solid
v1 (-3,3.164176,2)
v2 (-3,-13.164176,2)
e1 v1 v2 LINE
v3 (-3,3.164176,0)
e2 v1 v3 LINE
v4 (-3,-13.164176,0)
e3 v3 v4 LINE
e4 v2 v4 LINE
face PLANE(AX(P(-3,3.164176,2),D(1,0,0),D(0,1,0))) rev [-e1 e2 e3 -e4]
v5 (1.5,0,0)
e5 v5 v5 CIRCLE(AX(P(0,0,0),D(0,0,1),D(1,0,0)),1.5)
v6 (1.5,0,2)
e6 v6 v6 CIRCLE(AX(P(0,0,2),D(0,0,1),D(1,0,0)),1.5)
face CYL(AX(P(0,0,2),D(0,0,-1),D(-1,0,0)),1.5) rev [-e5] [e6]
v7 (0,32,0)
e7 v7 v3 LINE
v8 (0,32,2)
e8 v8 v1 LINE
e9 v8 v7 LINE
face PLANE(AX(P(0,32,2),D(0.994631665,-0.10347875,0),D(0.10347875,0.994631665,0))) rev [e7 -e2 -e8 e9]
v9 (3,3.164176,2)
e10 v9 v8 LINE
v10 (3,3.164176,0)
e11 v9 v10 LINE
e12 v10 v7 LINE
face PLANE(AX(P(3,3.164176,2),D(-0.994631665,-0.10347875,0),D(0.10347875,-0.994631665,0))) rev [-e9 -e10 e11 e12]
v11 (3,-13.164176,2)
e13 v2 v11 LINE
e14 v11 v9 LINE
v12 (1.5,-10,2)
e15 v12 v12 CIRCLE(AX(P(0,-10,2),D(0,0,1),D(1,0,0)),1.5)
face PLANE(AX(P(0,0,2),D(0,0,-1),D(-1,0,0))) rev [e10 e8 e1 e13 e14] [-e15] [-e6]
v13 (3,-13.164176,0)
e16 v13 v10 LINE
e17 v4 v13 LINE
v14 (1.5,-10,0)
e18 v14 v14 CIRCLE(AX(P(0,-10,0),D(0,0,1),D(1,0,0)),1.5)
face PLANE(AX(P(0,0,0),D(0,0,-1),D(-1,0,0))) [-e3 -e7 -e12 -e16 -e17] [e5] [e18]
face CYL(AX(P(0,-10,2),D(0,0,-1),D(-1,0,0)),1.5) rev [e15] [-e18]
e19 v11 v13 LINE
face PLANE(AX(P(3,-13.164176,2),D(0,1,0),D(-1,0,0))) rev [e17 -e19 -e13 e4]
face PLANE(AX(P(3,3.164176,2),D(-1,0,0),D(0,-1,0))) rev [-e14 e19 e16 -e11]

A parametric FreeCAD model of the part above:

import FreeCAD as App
import Part
import Sketcher
from FreeCAD import Vector


def add_polygon(sketch, points):
    """Adds a closed chain of lines whose ends are joined by coincident constraints."""
    first, n = sketch.GeometryCount, len(points)
    for a, b in zip(points, points[1:] + points[:1]):
        sketch.addGeometry(Part.LineSegment(App.Vector(*a, 0), App.Vector(*b, 0)), False)
    for i in range(n):
        sketch.addConstraint(Sketcher.Constraint("Coincident", first + i, 2, first + (i + 1) % n, 1))

doc = App.newDocument("Part")
body = doc.addObject("PartDesign::Body", "Body")

sketch1 = body.newObject("Sketcher::SketchObject", "Sketch")
sketch1.AttachmentSupport = (doc.getObject("XY_Plane"), [""])
sketch1.MapMode = "FlatFace"
add_polygon(sketch1, [(3, 3.2), (0, 32), (-3, 3.2), (-3, -13.2), (3, -13.2)])
sketch1.addGeometry(Part.Circle(Vector(0, -10, 0), Vector(0, 0, 1), 1.5), False)
sketch1.addGeometry(Part.Circle(Vector(0, 0, 0), Vector(0, 0, 1), 1.5), False)
sketch1.addConstraint([
    Sketcher.Constraint("Vertical", 2),
    Sketcher.Constraint("Horizontal", 3),
    Sketcher.Constraint("Vertical", 4),
    Sketcher.Constraint("Coincident", 6, 3, -1, 1),
    Sketcher.Constraint("Equal", 5, 6),
    Sketcher.Constraint("Symmetric", 1, 2, 4, 2, -2),
    Sketcher.Constraint("PointOnObject", 5, 3, -2),
    Sketcher.Constraint("PointOnObject", 0, 2, -2),
    Sketcher.Constraint("Diameter", 5, 3.0),
    Sketcher.Constraint("DistanceX", 3, 1, 3, 2, 6.0),
    Sketcher.Constraint("DistanceY", 5, 3, -1, 1, 10.0),
    Sketcher.Constraint("DistanceY", -1, 1, 0, 2, 32.0),
    Sketcher.Constraint("Distance", 0, 28.99146),
    Sketcher.Constraint("DistanceY", 2, 2, 2, 1, 16.328353),
])
pad1 = body.newObject("PartDesign::Pad", "Pad")
pad1.Profile = sketch1
pad1.Length = 2

doc.recompute()
